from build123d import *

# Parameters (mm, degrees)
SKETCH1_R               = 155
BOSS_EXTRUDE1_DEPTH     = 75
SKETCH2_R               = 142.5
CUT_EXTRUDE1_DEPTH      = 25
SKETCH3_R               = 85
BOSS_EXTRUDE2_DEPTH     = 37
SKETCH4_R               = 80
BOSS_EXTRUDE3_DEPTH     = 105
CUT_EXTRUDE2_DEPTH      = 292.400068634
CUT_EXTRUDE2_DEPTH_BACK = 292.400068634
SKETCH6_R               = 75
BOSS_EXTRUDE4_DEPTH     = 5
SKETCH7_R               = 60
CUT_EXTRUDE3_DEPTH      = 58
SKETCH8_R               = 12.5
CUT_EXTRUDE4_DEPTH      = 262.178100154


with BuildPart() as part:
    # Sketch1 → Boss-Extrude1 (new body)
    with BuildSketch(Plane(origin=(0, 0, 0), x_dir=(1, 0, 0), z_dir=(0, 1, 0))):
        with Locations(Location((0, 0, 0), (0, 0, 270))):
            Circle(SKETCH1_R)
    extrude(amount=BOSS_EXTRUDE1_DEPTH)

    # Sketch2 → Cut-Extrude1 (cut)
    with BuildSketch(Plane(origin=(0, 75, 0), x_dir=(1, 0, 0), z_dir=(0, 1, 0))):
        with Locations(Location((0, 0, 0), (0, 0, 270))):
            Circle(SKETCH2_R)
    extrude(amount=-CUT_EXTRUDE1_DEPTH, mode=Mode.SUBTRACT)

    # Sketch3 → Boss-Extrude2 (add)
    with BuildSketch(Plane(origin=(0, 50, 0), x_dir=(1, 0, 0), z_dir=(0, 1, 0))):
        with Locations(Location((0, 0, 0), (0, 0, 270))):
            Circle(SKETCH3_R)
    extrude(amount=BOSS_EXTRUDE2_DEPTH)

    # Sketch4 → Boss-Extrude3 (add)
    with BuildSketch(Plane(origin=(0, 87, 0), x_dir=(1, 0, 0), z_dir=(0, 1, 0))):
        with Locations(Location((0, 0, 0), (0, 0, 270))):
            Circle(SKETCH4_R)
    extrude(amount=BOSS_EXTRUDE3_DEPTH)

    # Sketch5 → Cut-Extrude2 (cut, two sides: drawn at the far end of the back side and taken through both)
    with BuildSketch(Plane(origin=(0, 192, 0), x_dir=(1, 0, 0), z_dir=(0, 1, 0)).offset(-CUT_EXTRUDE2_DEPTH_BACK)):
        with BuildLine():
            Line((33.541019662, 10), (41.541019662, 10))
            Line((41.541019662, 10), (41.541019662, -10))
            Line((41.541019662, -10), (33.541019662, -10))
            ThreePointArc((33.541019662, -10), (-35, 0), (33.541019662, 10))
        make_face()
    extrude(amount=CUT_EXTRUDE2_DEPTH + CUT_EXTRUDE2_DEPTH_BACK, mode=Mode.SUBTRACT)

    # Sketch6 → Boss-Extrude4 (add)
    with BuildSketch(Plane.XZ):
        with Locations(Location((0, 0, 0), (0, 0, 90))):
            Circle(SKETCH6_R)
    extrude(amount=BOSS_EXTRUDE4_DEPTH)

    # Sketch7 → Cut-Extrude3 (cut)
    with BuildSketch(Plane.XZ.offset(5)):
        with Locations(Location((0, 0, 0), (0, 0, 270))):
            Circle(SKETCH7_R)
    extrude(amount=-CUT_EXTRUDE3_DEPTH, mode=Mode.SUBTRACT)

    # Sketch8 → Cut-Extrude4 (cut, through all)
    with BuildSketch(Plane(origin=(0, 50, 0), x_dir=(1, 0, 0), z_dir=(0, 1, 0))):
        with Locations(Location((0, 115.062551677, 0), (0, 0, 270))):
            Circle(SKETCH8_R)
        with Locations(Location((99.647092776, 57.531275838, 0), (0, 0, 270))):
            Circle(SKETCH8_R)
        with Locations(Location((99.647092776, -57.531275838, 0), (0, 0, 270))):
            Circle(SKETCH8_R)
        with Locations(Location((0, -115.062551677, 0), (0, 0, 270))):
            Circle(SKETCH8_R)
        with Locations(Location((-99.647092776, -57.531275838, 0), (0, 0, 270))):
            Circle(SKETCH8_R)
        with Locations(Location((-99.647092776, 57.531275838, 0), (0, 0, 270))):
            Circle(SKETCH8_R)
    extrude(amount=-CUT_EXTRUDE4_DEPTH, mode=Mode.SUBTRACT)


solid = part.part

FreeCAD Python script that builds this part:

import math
import FreeCAD as App
import Part
import Sketcher

V = App.Vector

doc = App.newDocument("Part")
body = doc.addObject("PartDesign::Body", "Body")

# Sketch on XZ plane
sketch1 = doc.addObject("Sketcher::SketchObject", "Sketch")
body.addObject(sketch1)
sketch1.AttachmentSupport = (doc.XZ_Plane, [""])
sketch1.MapMode = "FlatFace"
sketch1.addGeometry(Part.Circle(V(0, 0, 0), V(0, 0, 1), 155), False)
sketch1.addConstraint([
    Sketcher.Constraint("Coincident", 0, 3, -1, 1),
    Sketcher.Constraint("Diameter", 0, 310.0),
])
pad1 = doc.addObject("PartDesign::Pad", "Pad")
body.addObject(pad1)
pad1.Profile = sketch1
pad1.Length = 75
pad1.Reversed = True

# Sketch on XZ plane
sketch2 = doc.addObject("Sketcher::SketchObject", "Sketch001")
body.addObject(sketch2)
sketch2.AttachmentSupport = (doc.XZ_Plane, [""])
sketch2.MapMode = "FlatFace"
sketch2.AttachmentOffset = App.Placement(V(0, 0, -75), App.Rotation())
sketch2.addGeometry(Part.Circle(V(0, 0, 0), V(0, 0, 1), 142.5), False)
sketch2.addConstraint([
    Sketcher.Constraint("Coincident", 0, 3, -1, 1),
    Sketcher.Constraint("Diameter", 0, 285.0),
])
pocket1 = doc.addObject("PartDesign::Pocket", "Pocket")
body.addObject(pocket1)
pocket1.Profile = sketch2
pocket1.Length = 25
pocket1.Reversed = True

# Sketch on XZ plane
sketch3 = doc.addObject("Sketcher::SketchObject", "Sketch002")
body.addObject(sketch3)
sketch3.AttachmentSupport = (doc.XZ_Plane, [""])
sketch3.MapMode = "FlatFace"
sketch3.AttachmentOffset = App.Placement(V(0, 0, -50), App.Rotation())
sketch3.addGeometry(Part.Circle(V(0, 0, 0), V(0, 0, 1), 85), False)
sketch3.addConstraint([
    Sketcher.Constraint("Coincident", 0, 3, -1, 1),
    Sketcher.Constraint("Diameter", 0, 170.0),
])
pad2 = doc.addObject("PartDesign::Pad", "Pad001")
body.addObject(pad2)
pad2.Profile = sketch3
pad2.Length = 37
pad2.Reversed = True

# Sketch on XZ plane
sketch4 = doc.addObject("Sketcher::SketchObject", "Sketch003")
body.addObject(sketch4)
sketch4.AttachmentSupport = (doc.XZ_Plane, [""])
sketch4.MapMode = "FlatFace"
sketch4.AttachmentOffset = App.Placement(V(0, 0, -87), App.Rotation())
sketch4.addGeometry(Part.Circle(V(0, 0, 0), V(0, 0, 1), 80), False)
sketch4.addConstraint([
    Sketcher.Constraint("Coincident", 0, 3, -1, 1),
    Sketcher.Constraint("Diameter", 0, 160.0),
])
pad3 = doc.addObject("PartDesign::Pad", "Pad002")
body.addObject(pad3)
pad3.Profile = sketch4
pad3.Length = 105
pad3.Reversed = True

# Sketch on XZ plane
sketch5 = doc.addObject("Sketcher::SketchObject", "Sketch004")
body.addObject(sketch5)
sketch5.AttachmentSupport = (doc.XZ_Plane, [""])
sketch5.MapMode = "FlatFace"
sketch5.AttachmentOffset = App.Placement(V(0, 0, -192), App.Rotation())
sketch5.addGeometry([
    Part.LineSegment(V(41.54102, -10, 0), V(33.54102, -10, 0)),
    Part.ArcOfCircle(Part.Circle(V(0, 0, 0), V(0, 0, 1), 35), math.radians(16.60155), math.radians(343.39845)),
    Part.LineSegment(V(33.54102, 10, 0), V(41.54102, 10, 0)),
    Part.LineSegment(V(41.54102, 10, 0), V(41.54102, -10, 0)),
], False)
sketch5.addConstraint([
    Sketcher.Constraint("Coincident", 0, 2, 1, 2),
    Sketcher.Constraint("Coincident", 1, 1, 2, 1),
    Sketcher.Constraint("Coincident", 2, 2, 3, 1),
    Sketcher.Constraint("Coincident", 3, 2, 0, 1),
    Sketcher.Constraint("Horizontal", 0),
    Sketcher.Constraint("Horizontal", 2),
    Sketcher.Constraint("Vertical", 3),
    Sketcher.Constraint("Coincident", 1, 3, -1, 1),
    Sketcher.Constraint("Vertical", 0, 2, 1, 1),
    Sketcher.Constraint("Radius", 1, 35.0),
    Sketcher.Constraint("DistanceX", 0, 2, 0, 1, 8.0),
    Sketcher.Constraint("DistanceY", 3, 2, 3, 1, 20.0),
])
pocket2 = doc.addObject("PartDesign::Pocket", "Pocket001")
body.addObject(pocket2)
pocket2.Profile = sketch5
pocket2.Type = "ThroughAll"
pocket2.Midplane = True

# Sketch on XZ plane
sketch6 = doc.addObject("Sketcher::SketchObject", "Sketch005")
body.addObject(sketch6)
sketch6.AttachmentSupport = (doc.XZ_Plane, [""])
sketch6.MapMode = "FlatFace"
sketch6.addGeometry(Part.Circle(V(0, 0, 0), V(0, 0, 1), 75), False)
sketch6.addConstraint([
    Sketcher.Constraint("Coincident", 0, 3, -1, 1),
    Sketcher.Constraint("Diameter", 0, 150.0),
])
pad4 = doc.addObject("PartDesign::Pad", "Pad003")
body.addObject(pad4)
pad4.Profile = sketch6
pad4.Length = 5

# Sketch on XZ plane
sketch7 = doc.addObject("Sketcher::SketchObject", "Sketch006")
body.addObject(sketch7)
sketch7.AttachmentSupport = (doc.XZ_Plane, [""])
sketch7.MapMode = "FlatFace"
sketch7.AttachmentOffset = App.Placement(V(0, 0, 5), App.Rotation())
sketch7.addGeometry(Part.Circle(V(0, 0, 0), V(0, 0, 1), 60), False)
sketch7.addConstraint([
    Sketcher.Constraint("Coincident", 0, 3, -1, 1),
    Sketcher.Constraint("Diameter", 0, 120.0),
])
pocket3 = doc.addObject("PartDesign::Pocket", "Pocket002")
body.addObject(pocket3)
pocket3.Profile = sketch7
pocket3.Length = 58

# Sketch on XZ plane
sketch8 = doc.addObject("Sketcher::SketchObject", "Sketch007")
body.addObject(sketch8)
sketch8.AttachmentSupport = (doc.XZ_Plane, [""])
sketch8.MapMode = "FlatFace"
sketch8.AttachmentOffset = App.Placement(V(0, 0, -50), App.Rotation())
sketch8.addGeometry([
    Part.Circle(V(0, -115.062552, 0), V(0, 0, 1), 12.5),  # 0
    Part.Circle(V(99.647093, -57.531276, 0), V(0, 0, 1), 12.5),  # 1
    Part.Circle(V(99.647093, 57.531276, 0), V(0, 0, 1), 12.5),  # 2
    Part.Circle(V(0, 115.062552, 0), V(0, 0, 1), 12.5),  # 3
    Part.Circle(V(-99.647093, 57.531276, 0), V(0, 0, 1), 12.5),  # 4
    Part.Circle(V(-99.647093, -57.531276, 0), V(0, 0, 1), 12.5),  # 5
], False)
sketch8.addConstraint([
    Sketcher.Constraint("Equal", 0, 1),
    Sketcher.Constraint("Equal", 1, 2),
    Sketcher.Constraint("Equal", 2, 3),
    Sketcher.Constraint("Equal", 3, 4),
    Sketcher.Constraint("Equal", 4, 5),
    Sketcher.Constraint("Symmetric", 0, 3, 3, 3, -1, 1),
    Sketcher.Constraint("Symmetric", 1, 3, 4, 3, -1, 1),
    Sketcher.Constraint("Symmetric", 2, 3, 5, 3, -1, 1),
    Sketcher.Constraint("Symmetric", 2, 3, 4, 3, -2),
    Sketcher.Constraint("PointOnObject", 0, 3, -2),
    Sketcher.Constraint("Diameter", 0, 25.0),
    Sketcher.Constraint("DistanceY", 0, 3, -1, 1, 115.062552),
    Sketcher.Constraint("DistanceY", 1, 3, 2, 3, 115.062552),
    Sketcher.Constraint("DistanceX", -1, 1, 1, 3, 99.647093),
])
pocket4 = doc.addObject("PartDesign::Pocket", "Pocket003")
body.addObject(pocket4)
pocket4.Profile = sketch8
pocket4.Type = "ThroughAll"
pocket4.Reversed = True

doc.recompute()
